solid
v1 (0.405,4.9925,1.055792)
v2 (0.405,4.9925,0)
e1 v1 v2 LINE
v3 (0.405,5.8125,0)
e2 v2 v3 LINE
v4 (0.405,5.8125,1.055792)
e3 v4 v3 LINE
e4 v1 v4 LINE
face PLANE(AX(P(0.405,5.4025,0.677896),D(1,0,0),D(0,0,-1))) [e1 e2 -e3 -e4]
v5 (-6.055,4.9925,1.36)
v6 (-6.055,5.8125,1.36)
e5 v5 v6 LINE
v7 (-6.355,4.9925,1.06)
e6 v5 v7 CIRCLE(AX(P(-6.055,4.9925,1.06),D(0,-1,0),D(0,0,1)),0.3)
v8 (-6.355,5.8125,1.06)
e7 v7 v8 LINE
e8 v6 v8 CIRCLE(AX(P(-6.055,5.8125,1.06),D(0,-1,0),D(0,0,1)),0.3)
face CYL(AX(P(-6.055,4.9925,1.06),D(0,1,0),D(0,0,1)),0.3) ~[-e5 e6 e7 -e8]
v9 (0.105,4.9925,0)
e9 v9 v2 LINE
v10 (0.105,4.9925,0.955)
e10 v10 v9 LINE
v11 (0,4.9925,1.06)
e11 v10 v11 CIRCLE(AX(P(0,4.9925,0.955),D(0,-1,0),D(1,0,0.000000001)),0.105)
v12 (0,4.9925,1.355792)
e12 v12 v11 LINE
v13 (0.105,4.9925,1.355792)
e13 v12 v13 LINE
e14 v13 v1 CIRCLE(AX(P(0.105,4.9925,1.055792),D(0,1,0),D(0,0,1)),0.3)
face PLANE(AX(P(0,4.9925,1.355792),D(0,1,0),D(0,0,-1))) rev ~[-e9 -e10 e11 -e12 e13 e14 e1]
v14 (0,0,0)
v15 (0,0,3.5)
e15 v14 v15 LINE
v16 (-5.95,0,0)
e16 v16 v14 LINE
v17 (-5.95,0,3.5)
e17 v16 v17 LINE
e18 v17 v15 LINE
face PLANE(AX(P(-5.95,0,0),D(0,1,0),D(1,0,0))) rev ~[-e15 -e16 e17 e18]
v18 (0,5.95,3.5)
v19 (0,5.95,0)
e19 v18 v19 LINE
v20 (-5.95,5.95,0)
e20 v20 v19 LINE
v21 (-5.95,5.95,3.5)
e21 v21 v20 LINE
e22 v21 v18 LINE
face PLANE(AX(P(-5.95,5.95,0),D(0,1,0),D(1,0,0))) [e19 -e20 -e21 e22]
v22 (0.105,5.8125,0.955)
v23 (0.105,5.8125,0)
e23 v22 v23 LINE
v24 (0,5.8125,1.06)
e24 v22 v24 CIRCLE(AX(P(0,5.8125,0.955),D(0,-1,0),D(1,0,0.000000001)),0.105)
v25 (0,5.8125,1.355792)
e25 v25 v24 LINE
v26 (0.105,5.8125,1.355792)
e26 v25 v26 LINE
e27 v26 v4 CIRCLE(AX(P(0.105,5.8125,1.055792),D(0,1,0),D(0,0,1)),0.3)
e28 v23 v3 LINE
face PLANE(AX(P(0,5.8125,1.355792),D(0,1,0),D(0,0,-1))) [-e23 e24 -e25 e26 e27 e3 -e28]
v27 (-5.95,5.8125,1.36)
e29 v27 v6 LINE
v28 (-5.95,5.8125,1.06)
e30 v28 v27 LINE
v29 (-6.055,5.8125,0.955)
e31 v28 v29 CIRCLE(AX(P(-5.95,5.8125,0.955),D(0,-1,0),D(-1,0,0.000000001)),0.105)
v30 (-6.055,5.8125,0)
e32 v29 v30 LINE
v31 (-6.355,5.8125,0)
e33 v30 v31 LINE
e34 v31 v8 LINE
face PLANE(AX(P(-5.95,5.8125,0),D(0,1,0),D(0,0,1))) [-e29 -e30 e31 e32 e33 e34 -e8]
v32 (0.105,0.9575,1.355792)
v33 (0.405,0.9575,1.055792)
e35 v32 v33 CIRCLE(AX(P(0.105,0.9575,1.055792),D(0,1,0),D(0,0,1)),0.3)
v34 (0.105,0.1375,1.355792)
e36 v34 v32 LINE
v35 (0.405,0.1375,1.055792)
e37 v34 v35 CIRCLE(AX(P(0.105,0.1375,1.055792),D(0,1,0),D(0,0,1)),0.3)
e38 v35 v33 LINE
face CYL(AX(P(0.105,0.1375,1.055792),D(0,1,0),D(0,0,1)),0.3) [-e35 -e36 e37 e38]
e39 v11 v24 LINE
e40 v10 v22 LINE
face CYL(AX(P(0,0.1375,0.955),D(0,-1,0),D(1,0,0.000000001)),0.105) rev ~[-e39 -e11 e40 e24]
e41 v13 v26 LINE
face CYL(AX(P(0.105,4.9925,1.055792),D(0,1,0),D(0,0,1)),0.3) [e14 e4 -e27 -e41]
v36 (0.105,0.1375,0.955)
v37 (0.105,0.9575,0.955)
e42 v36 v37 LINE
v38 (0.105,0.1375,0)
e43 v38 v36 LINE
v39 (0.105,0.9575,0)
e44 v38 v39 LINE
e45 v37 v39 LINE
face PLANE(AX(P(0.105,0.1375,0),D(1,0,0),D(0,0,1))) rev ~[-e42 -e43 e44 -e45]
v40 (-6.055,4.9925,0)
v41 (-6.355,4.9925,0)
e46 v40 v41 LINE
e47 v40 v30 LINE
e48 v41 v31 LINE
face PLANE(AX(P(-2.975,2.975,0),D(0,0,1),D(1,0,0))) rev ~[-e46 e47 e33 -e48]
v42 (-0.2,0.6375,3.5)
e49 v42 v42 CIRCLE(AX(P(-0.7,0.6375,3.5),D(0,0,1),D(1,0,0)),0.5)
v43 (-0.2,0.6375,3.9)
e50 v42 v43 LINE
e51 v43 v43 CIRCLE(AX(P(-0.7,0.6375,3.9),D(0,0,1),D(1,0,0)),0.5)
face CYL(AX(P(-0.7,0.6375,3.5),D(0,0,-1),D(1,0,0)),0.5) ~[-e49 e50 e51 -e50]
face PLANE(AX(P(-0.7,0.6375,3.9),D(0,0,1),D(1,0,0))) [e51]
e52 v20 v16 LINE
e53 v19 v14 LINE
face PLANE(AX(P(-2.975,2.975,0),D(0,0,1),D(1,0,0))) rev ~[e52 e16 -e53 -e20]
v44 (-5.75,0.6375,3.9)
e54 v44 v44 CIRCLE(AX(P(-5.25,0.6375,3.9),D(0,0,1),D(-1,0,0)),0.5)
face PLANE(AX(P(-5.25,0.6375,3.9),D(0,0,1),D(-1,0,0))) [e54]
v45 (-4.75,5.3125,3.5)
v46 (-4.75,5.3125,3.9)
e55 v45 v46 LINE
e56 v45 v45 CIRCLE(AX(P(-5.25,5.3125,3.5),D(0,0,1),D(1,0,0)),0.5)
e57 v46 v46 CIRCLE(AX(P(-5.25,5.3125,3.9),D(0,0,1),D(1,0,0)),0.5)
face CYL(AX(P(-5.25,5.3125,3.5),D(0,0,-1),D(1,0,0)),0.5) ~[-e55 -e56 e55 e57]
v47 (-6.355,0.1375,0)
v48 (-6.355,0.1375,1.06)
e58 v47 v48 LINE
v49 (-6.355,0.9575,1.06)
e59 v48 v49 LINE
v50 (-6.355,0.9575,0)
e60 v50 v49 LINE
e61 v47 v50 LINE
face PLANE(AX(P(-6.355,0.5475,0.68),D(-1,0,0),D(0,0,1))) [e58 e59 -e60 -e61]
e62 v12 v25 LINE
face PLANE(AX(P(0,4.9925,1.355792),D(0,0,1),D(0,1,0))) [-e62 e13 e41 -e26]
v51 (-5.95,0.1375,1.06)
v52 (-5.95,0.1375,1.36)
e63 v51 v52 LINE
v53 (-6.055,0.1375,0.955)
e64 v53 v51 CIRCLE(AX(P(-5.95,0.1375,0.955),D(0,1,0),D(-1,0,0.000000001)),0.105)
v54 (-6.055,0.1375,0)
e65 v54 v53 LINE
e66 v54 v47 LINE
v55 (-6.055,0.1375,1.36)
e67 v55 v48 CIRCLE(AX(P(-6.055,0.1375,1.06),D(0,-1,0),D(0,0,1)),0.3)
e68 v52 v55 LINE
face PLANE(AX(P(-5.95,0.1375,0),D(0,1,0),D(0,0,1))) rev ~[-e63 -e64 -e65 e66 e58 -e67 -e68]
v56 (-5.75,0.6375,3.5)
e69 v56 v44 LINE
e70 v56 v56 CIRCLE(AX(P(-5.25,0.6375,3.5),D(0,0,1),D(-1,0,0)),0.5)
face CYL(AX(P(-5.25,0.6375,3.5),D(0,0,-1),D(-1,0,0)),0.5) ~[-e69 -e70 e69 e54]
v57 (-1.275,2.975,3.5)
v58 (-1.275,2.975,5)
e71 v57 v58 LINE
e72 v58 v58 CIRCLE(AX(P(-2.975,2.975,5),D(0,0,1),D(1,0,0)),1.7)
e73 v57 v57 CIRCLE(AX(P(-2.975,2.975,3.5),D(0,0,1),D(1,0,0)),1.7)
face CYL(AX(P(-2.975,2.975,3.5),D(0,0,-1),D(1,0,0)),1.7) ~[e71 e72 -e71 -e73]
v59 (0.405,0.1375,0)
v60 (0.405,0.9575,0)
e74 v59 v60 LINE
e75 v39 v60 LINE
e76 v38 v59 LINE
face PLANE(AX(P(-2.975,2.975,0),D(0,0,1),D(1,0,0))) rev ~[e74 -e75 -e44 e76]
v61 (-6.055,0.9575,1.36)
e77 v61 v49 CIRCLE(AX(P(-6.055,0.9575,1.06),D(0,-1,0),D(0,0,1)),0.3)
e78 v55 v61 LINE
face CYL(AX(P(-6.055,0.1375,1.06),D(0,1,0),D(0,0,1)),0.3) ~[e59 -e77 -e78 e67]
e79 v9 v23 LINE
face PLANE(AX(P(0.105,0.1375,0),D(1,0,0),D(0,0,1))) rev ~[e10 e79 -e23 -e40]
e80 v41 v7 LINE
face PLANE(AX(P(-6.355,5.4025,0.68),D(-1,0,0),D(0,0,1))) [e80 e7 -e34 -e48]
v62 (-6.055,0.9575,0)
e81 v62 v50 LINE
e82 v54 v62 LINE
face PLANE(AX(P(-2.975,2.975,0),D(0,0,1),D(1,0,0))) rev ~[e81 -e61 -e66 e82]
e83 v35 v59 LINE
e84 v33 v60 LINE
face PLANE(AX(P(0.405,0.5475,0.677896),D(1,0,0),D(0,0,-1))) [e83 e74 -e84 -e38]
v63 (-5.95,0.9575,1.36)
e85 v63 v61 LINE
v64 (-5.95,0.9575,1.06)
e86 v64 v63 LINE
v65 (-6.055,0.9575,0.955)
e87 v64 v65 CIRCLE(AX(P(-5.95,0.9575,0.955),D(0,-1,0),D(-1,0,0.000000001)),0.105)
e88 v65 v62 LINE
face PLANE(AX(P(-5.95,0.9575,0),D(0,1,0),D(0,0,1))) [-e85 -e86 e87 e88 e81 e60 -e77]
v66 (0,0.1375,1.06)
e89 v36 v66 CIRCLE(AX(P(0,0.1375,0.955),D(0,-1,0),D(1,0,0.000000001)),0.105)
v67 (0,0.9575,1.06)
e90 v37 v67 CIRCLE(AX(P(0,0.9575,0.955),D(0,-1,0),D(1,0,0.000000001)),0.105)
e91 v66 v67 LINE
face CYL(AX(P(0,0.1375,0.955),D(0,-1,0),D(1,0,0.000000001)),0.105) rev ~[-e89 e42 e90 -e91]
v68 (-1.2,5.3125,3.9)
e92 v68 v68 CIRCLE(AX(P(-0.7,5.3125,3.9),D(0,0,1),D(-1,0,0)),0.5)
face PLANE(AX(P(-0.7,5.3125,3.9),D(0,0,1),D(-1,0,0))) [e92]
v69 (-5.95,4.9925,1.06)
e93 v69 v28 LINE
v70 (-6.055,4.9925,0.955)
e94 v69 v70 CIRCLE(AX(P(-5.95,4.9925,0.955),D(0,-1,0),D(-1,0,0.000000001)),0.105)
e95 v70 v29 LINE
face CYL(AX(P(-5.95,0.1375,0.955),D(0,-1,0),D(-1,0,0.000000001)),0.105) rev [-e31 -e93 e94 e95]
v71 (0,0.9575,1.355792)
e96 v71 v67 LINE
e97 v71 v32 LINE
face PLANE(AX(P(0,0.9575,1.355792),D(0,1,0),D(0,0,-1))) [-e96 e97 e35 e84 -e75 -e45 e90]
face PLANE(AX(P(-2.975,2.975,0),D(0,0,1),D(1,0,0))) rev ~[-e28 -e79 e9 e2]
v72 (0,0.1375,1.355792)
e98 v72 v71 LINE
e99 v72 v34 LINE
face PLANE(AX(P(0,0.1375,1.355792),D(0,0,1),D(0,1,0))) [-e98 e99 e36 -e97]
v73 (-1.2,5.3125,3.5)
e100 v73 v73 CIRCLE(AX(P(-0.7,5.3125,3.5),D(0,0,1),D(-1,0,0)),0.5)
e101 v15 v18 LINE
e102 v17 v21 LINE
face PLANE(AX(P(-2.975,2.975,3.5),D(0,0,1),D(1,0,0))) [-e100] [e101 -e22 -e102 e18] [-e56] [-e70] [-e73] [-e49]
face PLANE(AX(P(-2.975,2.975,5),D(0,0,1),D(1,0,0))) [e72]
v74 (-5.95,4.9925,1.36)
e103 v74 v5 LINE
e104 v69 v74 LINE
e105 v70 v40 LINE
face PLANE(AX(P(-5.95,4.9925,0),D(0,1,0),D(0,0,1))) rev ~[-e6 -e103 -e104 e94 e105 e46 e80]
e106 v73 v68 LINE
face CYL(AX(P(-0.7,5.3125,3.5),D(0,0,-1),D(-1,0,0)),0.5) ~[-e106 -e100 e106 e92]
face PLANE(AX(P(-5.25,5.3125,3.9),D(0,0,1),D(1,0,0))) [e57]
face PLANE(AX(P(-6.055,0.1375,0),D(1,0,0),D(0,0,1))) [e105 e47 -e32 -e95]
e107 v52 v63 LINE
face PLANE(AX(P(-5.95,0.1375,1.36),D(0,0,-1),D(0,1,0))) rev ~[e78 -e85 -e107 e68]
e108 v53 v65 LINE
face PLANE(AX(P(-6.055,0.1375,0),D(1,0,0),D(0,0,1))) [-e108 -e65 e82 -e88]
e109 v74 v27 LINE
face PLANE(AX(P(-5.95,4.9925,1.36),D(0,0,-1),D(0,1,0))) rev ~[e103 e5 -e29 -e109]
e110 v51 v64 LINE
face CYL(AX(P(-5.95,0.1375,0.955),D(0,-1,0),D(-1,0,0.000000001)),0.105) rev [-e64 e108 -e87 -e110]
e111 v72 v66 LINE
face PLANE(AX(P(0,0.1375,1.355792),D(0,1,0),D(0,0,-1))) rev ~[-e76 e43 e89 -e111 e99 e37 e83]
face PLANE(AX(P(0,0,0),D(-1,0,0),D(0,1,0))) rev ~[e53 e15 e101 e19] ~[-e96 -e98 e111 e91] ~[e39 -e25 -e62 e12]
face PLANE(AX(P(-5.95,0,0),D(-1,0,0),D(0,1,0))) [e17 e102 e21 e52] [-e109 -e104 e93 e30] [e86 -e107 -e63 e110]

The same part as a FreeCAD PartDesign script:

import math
import FreeCAD as App
import Part
import Sketcher

V = App.Vector


def edges_at(feature, points):
    """Names of the edges that pass closest to the given points."""
    edges = feature.Shape.Edges
    near = lambda p: min(range(len(edges)), key=lambda i: edges[i].distToShape(Part.Vertex(*p))[0])
    return sorted({f"Edge{near(p) + 1}" for p in points})


def add_polygon(sketch, points):
    """Adds a closed chain of lines whose ends are joined by coincident constraints."""
    first, n = sketch.GeometryCount, len(points)
    for a, b in zip(points, points[1:] + points[:1]):
        sketch.addGeometry(Part.LineSegment(App.Vector(*a, 0), App.Vector(*b, 0)), False)
    for i in range(n):
        sketch.addConstraint(Sketcher.Constraint("Coincident", first + i, 2, first + (i + 1) % n, 1))

doc = App.newDocument("Part")
body = doc.addObject("PartDesign::Body", "Body")

# Sketch on XY plane
sketch1 = body.newObject("Sketcher::SketchObject", "Sketch")
sketch1.AttachmentSupport = (doc.getObject("XY_Plane"), [""])
sketch1.MapMode = "FlatFace"
add_polygon(sketch1, [(-5.95, 5.95), (-5.95, 0), (0, 0), (0, 5.95)])  # lines 0-3
sketch1.addConstraint(Sketcher.Constraint("Vertical", 0))
sketch1.addConstraint(Sketcher.Constraint("Horizontal", 1))
sketch1.addConstraint(Sketcher.Constraint("Vertical", 2))
sketch1.addConstraint(Sketcher.Constraint("Horizontal", 3))
sketch1.addConstraint(Sketcher.Constraint("Coincident", 1, 2, -1, 1))
sketch1.addConstraint(Sketcher.Constraint("Equal", 3, 0))
sketch1.addConstraint(Sketcher.Constraint("DistanceX", 1, 1, 1, 2, 5.95))
pad1 = body.newObject("PartDesign::Pad", "Pad")
pad1.Profile = sketch1
pad1.Length = 3.5

# Sketch on XY plane
sketch2 = body.newObject("Sketcher::SketchObject", "Sketch001")
sketch2.AttachmentSupport = (doc.getObject("XY_Plane"), [""])
sketch2.MapMode = "FlatFace"
sketch2.AttachmentOffset = App.Placement(V(0, 0, 3.5), App.Rotation())
sketch2.addGeometry(Part.Circle(V(-2.975, 2.975, 0), V(0, 0, 1), 1.7), False)
sketch2.addConstraint(Sketcher.Constraint("Diameter", 0, 3.4))
sketch2.addConstraint(Sketcher.Constraint("DistanceX", 0, 3, -1, 1, 2.975))
sketch2.addConstraint(Sketcher.Constraint("DistanceY", -1, 1, 0, 3, 2.975))
pad2 = body.newObject("PartDesign::Pad", "Pad001")
pad2.Profile = sketch2
pad2.Length = 1.5

# Sketch on XY plane
sketch3 = body.newObject("Sketcher::SketchObject", "Sketch002")
sketch3.AttachmentSupport = (doc.getObject("XY_Plane"), [""])
sketch3.MapMode = "FlatFace"
sketch3.AttachmentOffset = App.Placement(V(0, 0, 3.5), App.Rotation())
sketch3.addGeometry(Part.Circle(V(-5.25, 5.3125, 0), V(0, 0, 1), 0.5), False)
sketch3.addGeometry(Part.Circle(V(-0.7, 5.3125, 0), V(0, 0, 1), 0.5), False)
sketch3.addGeometry(Part.Circle(V(-0.7, 0.6375, 0), V(0, 0, 1), 0.5), False)
sketch3.addGeometry(Part.Circle(V(-5.25, 0.6375, 0), V(0, 0, 1), 0.5), False)
sketch3.addConstraint(Sketcher.Constraint("Equal", 0, 1))
sketch3.addConstraint(Sketcher.Constraint("Equal", 1, 2))
sketch3.addConstraint(Sketcher.Constraint("Equal", 2, 3))
sketch3.addConstraint(Sketcher.Constraint("Horizontal", 0, 3, 1, 3))
sketch3.addConstraint(Sketcher.Constraint("Horizontal", 2, 3, 3, 3))
sketch3.addConstraint(Sketcher.Constraint("Vertical", 1, 3, 2, 3))
sketch3.addConstraint(Sketcher.Constraint("Vertical", 0, 3, 3, 3))
sketch3.addConstraint(Sketcher.Constraint("Diameter", 0, 1.0))
sketch3.addConstraint(Sketcher.Constraint("DistanceX", 1, 3, -1, 1, 0.7))
sketch3.addConstraint(Sketcher.Constraint("DistanceX", 0, 3, -1, 1, 5.25))
sketch3.addConstraint(Sketcher.Constraint("DistanceY", 2, 3, 1, 3, 4.675))
sketch3.addConstraint(Sketcher.Constraint("DistanceY", -1, 1, 0, 3, 5.3125))
pad3 = body.newObject("PartDesign::Pad", "Pad002")
pad3.Profile = sketch3
pad3.Length = 0.4

# Sketch on YZ plane
sketch4 = body.newObject("Sketcher::SketchObject", "Sketch003")
sketch4.AttachmentSupport = (doc.getObject("YZ_Plane"), [""])
sketch4.MapMode = "FlatFace"
add_polygon(sketch4, [(5.8125, 1.355792), (4.9925, 1.355792), (4.9925, 0), (5.8125, 0)])  # lines 0-3
add_polygon(sketch4, [(0.9575, 1.355792), (0.1375, 1.355792), (0.1375, 0), (0.9575, 0)])  # lines 4-7
sketch4.addConstraint(Sketcher.Constraint("Horizontal", 0))
sketch4.addConstraint(Sketcher.Constraint("Vertical", 1))
sketch4.addConstraint(Sketcher.Constraint("Horizontal", 2))
sketch4.addConstraint(Sketcher.Constraint("Vertical", 3))
sketch4.addConstraint(Sketcher.Constraint("Horizontal", 4))
sketch4.addConstraint(Sketcher.Constraint("Vertical", 5))
sketch4.addConstraint(Sketcher.Constraint("Horizontal", 6))
sketch4.addConstraint(Sketcher.Constraint("Vertical", 7))
sketch4.addConstraint(Sketcher.Constraint("PointOnObject", 1, 2, -1))
sketch4.addConstraint(Sketcher.Constraint("PointOnObject", 5, 2, -1))
sketch4.addConstraint(Sketcher.Constraint("Horizontal", 3, 2, 4, 2))
sketch4.addConstraint(Sketcher.Constraint("Equal", 2, 4))
sketch4.addConstraint(Sketcher.Constraint("DistanceX", 0, 2, 0, 1, 0.82))
sketch4.addConstraint(Sketcher.Constraint("DistanceX", 4, 2, 0, 2, 4.855))
sketch4.addConstraint(Sketcher.Constraint("DistanceY", 1, 2, 1, 1, 1.355792))
sketch4.addConstraint(Sketcher.Constraint("DistanceX", -1, 1, 0, 2, 4.9925))
pad4 = body.newObject("PartDesign::Pad", "Pad003")
pad4.Profile = sketch4
pad4.Length = 0.405
doc.recompute()

fillet = body.newObject("PartDesign::Fillet", "Fillet")
fillet.Base = (pad4, edges_at(pad4, [(0.405, 5.402, 1.356)]))
fillet.Radius = 0.3
doc.recompute()

fillet2 = body.newObject("PartDesign::Fillet", "Fillet001")
fillet2.Base = (fillet, edges_at(fillet, [(0.405, 0.547, 1.356)]))
fillet2.Radius = 0.3

# Sketch on YZ plane
sketch5 = body.newObject("Sketcher::SketchObject", "Sketch004")
sketch5.AttachmentSupport = (doc.getObject("YZ_Plane"), [""])
sketch5.MapMode = "FlatFace"
sketch5.AttachmentOffset = App.Placement(V(0, 0, -5.95), App.Rotation())
add_polygon(sketch5, [(5.8125, 0), (4.9925, 0), (4.9925, 1.36), (5.8125, 1.36)])  # lines 0-3
add_polygon(sketch5, [(0.9575, 0), (0.1375, 0), (0.1375, 1.36), (0.9575, 1.36)])  # lines 4-7
sketch5.addConstraint(Sketcher.Constraint("Horizontal", 0))
sketch5.addConstraint(Sketcher.Constraint("Vertical", 1))
sketch5.addConstraint(Sketcher.Constraint("Horizontal", 2))
sketch5.addConstraint(Sketcher.Constraint("Vertical", 3))
sketch5.addConstraint(Sketcher.Constraint("Horizontal", 4))
sketch5.addConstraint(Sketcher.Constraint("Vertical", 5))
sketch5.addConstraint(Sketcher.Constraint("Horizontal", 6))
sketch5.addConstraint(Sketcher.Constraint("Vertical", 7))
sketch5.addConstraint(Sketcher.Constraint("PointOnObject", 0, 2, -1))
sketch5.addConstraint(Sketcher.Constraint("PointOnObject", 4, 2, -1))
sketch5.addConstraint(Sketcher.Constraint("Horizontal", 2, 2, 5, 2))
sketch5.addConstraint(Sketcher.Constraint("Equal", 2, 4))
sketch5.addConstraint(Sketcher.Constraint("DistanceX", 0, 2, 0, 1, 0.82))
sketch5.addConstraint(Sketcher.Constraint("DistanceY", 1, 1, 1, 2, 1.36))
sketch5.addConstraint(Sketcher.Constraint("DistanceX", 4, 2, 0, 2, 4.855))
sketch5.addConstraint(Sketcher.Constraint("DistanceX", -1, 1, 0, 2, 4.9925))
pad5 = body.newObject("PartDesign::Pad", "Pad004")
pad5.Profile = sketch5
pad5.Length = 0.405
pad5.Reversed = True
doc.recompute()

fillet3 = body.newObject("PartDesign::Fillet", "Fillet002")
fillet3.Base = (pad5, edges_at(pad5, [(-6.355, 5.402, 1.36)]))
fillet3.Radius = 0.3
doc.recompute()

fillet4 = body.newObject("PartDesign::Fillet", "Fillet003")
fillet4.Base = (fillet3, edges_at(fillet3, [(-6.355, 0.547, 1.36)]))
fillet4.Radius = 0.3

# Sketch on XZ plane
sketch6 = body.newObject("Sketcher::SketchObject", "Sketch005")
sketch6.AttachmentSupport = (doc.getObject("XZ_Plane"), [""])
sketch6.MapMode = "FlatFace"
sketch6.AttachmentOffset = App.Placement(V(0, 0, -0.1375), App.Rotation())
sketch6.addGeometry(Part.LineSegment(V(-6.055, 0, 0), V(-5.95, 0, 0)), False)
sketch6.addGeometry(Part.LineSegment(V(-5.95, 0, 0), V(-5.95, 1.06, 0)), False)
sketch6.addGeometry(Part.ArcOfCircle(Part.Circle(V(-5.95, 0.955, 0), V(0, 0, 1), 0.105), math.radians(90), math.radians(180)), False)
sketch6.addGeometry(Part.LineSegment(V(-6.055, 0.955, 0), V(-6.055, 0, 0)), False)
sketch6.addGeometry(Part.LineSegment(V(0.105, 0, 0), V(0.105, 0.955, 0)), False)
sketch6.addGeometry(Part.ArcOfCircle(Part.Circle(V(0, 0.955, 0), V(0, 0, 1), 0.105), math.radians(0), math.radians(90)), False)
sketch6.addGeometry(Part.LineSegment(V(0, 1.06, 0), V(0, 0, 0)), False)
sketch6.addGeometry(Part.LineSegment(V(0, 0, 0), V(0.105, 0, 0)), False)
sketch6.addConstraint(Sketcher.Constraint("Coincident", 0, 2, 1, 1))
sketch6.addConstraint(Sketcher.Constraint("Coincident", 1, 2, 2, 1))
sketch6.addConstraint(Sketcher.Constraint("Tangent", 2, 2, 3, 1))
sketch6.addConstraint(Sketcher.Constraint("Coincident", 3, 2, 0, 1))
sketch6.addConstraint(Sketcher.Constraint("Tangent", 4, 2, 5, 1))
sketch6.addConstraint(Sketcher.Constraint("Coincident", 5, 2, 6, 1))
sketch6.addConstraint(Sketcher.Constraint("Coincident", 6, 2, 7, 1))
sketch6.addConstraint(Sketcher.Constraint("Coincident", 7, 2, 4, 1))
sketch6.addConstraint(Sketcher.Constraint("Horizontal", 0))
sketch6.addConstraint(Sketcher.Constraint("Vertical", 1))
sketch6.addConstraint(Sketcher.Constraint("Vertical", 3))
sketch6.addConstraint(Sketcher.Constraint("Vertical", 4))
sketch6.addConstraint(Sketcher.Constraint("Vertical", 6))
sketch6.addConstraint(Sketcher.Constraint("Horizontal", 7))
sketch6.addConstraint(Sketcher.Constraint("Coincident", 6, 2, -1, 1))
sketch6.addConstraint(Sketcher.Constraint("Equal", 2, 5))
sketch6.addConstraint(Sketcher.Constraint("PointOnObject", 5, 3, -2))
sketch6.addConstraint(Sketcher.Constraint("PointOnObject", 0, 2, -1))
sketch6.addConstraint(Sketcher.Constraint("Horizontal", 2, 3, 5, 3))
sketch6.addConstraint(Sketcher.Constraint("Vertical", 2, 3, 0, 2))
sketch6.addConstraint(Sketcher.Constraint("Radius", 2, 0.105))
sketch6.addConstraint(Sketcher.Constraint("DistanceY", 1, 1, 1, 2, 1.06))
sketch6.addConstraint(Sketcher.Constraint("DistanceX", 2, 3, -1, 1, 5.95))
pocket1 = body.newObject("PartDesign::Pocket", "Pocket")
pocket1.Profile = sketch6
pocket1.Type = "ThroughAll"

doc.recompute()
